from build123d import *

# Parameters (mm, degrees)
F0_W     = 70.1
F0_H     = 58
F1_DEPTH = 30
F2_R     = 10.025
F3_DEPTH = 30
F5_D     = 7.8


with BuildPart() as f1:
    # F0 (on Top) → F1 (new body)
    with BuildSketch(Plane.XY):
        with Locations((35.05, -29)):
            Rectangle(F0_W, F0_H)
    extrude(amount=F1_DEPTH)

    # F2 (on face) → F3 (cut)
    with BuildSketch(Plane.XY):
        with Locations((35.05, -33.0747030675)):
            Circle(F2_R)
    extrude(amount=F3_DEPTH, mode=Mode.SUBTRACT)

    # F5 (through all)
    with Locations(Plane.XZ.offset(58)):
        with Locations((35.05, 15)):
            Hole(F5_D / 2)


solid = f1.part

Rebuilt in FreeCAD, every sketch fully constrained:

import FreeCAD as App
import Part
import Sketcher

V = App.Vector


def add_polygon(sketch, points):
    """Adds a closed chain of lines whose ends are joined by coincident constraints."""
    first, n = sketch.GeometryCount, len(points)
    for a, b in zip(points, points[1:] + points[:1]):
        sketch.addGeometry(Part.LineSegment(App.Vector(*a, 0), App.Vector(*b, 0)), False)
    for i in range(n):
        sketch.addConstraint(Sketcher.Constraint("Coincident", first + i, 2, first + (i + 1) % n, 1))

doc = App.newDocument("Part")
params = doc.addObject("Spreadsheet::Sheet", "Params")
for row, (alias, value) in enumerate([
    ("sketch1_height", "58 mm"),
    ("sketch1_width", "70.1 mm"),
    ("pad1_length", "30 mm"),
    ("sketch2_diameter", "20.05 mm"),
    ("pocket1_length", "30 mm"),
    ("sketch3_diameter", "7.8 mm"),
    ("hole_diameter", "7.8 mm"),
], start=1):
    params.set(f"A{row}", alias)
    params.set(f"B{row}", "=" + value)
    params.setAlias(f"B{row}", alias)

body = doc.addObject("PartDesign::Body", "Body")

sketch1 = body.newObject("Sketcher::SketchObject", "Sketch")
sketch1.AttachmentSupport = (doc.getObject("XY_Plane"), [""])
sketch1.MapMode = "FlatFace"
add_polygon(sketch1, [(0, 0), (0, -58), (70, -58), (70, 0)])
sketch1.addConstraint([
    Sketcher.Constraint("Vertical", 0),
    Sketcher.Constraint("Horizontal", 1),
    Sketcher.Constraint("Vertical", 2),
    Sketcher.Constraint("Horizontal", 3),
    Sketcher.Constraint("Coincident", 3, 2, -1, 1),
    Sketcher.Constraint("DistanceY", 0, 2, 0, 1, 58.0),
    Sketcher.Constraint("DistanceX", 1, 1, 1, 2, 70.1),
])
sketch1.setExpression("Constraints[9]", "Params.sketch1_height")
sketch1.setExpression("Constraints[10]", "Params.sketch1_width")
pad1 = body.newObject("PartDesign::Pad", "Pad")
pad1.Profile = sketch1
pad1.setExpression("Length", "Params.pad1_length")

sketch2 = body.newObject("Sketcher::SketchObject", "Sketch001")
sketch2.AttachmentSupport = (doc.getObject("XY_Plane"), [""])
sketch2.MapMode = "FlatFace"
sketch2.addGeometry(Part.Circle(V(35, -33, 0), V(0, 0, 1), 10), False)
sketch2.addConstraint([
    Sketcher.Constraint("Diameter", 0, 20.05),
    Sketcher.Constraint("DistanceX", -1, 1, 0, 3, 35.05),
    Sketcher.Constraint("DistanceY", 0, 3, -1, 1, 33.074703),
])
sketch2.setExpression("Constraints[0]", "Params.sketch2_diameter")
pocket1 = body.newObject("PartDesign::Pocket", "Pocket")
pocket1.Profile = sketch2
pocket1.setExpression("Length", "Params.pocket1_length")
pocket1.Reversed = True

sketch3 = body.newObject("Sketcher::SketchObject", "Sketch002")
sketch3.AttachmentSupport = (doc.getObject("XZ_Plane"), [""])
sketch3.MapMode = "FlatFace"
sketch3.AttachmentOffset = App.Placement(V(0, 0, 58), App.Rotation())
sketch3.addGeometry(Part.Circle(V(35, 15, 0), V(0, 0, 1), 3.9), False)
sketch3.addConstraint([
    Sketcher.Constraint("Diameter", 0, 7.8),
    Sketcher.Constraint("DistanceY", -1, 1, 0, 3, 15.0),
    Sketcher.Constraint("DistanceX", -1, 1, 0, 3, 35.05),
])
sketch3.setExpression("Constraints[0]", "Params.sketch3_diameter")
doc.recompute()
hole = body.newObject("PartDesign::Hole", "Hole")
hole.Profile = sketch3
hole.ThreadType = "None"
hole.setExpression("Diameter", "Params.hole_diameter")
hole.DepthType = "ThroughAll"

doc.recompute()
